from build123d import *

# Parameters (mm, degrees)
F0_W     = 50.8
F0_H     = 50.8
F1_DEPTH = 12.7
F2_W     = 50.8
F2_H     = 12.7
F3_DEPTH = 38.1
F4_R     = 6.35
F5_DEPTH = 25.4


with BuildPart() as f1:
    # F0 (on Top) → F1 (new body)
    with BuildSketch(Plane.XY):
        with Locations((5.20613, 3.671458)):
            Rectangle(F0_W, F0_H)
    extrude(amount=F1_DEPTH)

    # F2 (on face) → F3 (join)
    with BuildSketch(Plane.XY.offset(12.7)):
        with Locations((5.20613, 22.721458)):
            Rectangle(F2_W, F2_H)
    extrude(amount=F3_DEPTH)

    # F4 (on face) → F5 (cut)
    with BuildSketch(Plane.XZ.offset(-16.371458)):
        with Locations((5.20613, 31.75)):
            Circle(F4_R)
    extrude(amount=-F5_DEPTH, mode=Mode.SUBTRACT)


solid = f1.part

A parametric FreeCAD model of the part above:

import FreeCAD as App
import Part
import Sketcher
Q = App.Units.Quantity


def add_polygon(sketch, points):
    """Adds a closed chain of lines whose ends are joined by coincident constraints."""
    first, n = sketch.GeometryCount, len(points)
    for a, b in zip(points, points[1:] + points[:1]):
        sketch.addGeometry(Part.LineSegment(App.Vector(*a, 0), App.Vector(*b, 0)), False)
    for i in range(n):
        sketch.addConstraint(Sketcher.Constraint("Coincident", first + i, 2, first + (i + 1) % n, 1))

doc = App.newDocument("Part")
body = doc.addObject("PartDesign::Body", "Body")

sketch1 = doc.addObject("Sketcher::SketchObject", "Sketch")
body.addObject(sketch1)
sketch1.AttachmentSupport = (doc.XY_Plane, [""])
sketch1.MapMode = "FlatFace"
add_polygon(sketch1, [(-20.19387, 29.071458), (-20.19387, -21.728542), (30.60613, -21.728542), (30.60613, 29.071458)])
sketch1.addConstraint([
    Sketcher.Constraint("Vertical", 0),
    Sketcher.Constraint("Horizontal", 1),
    Sketcher.Constraint("Vertical", 2),
    Sketcher.Constraint("Horizontal", 3),
    Sketcher.Constraint("Equal", 3, 0),
    Sketcher.Constraint("DistanceX", 1, 1, 1, 2, Q("2 in")),
    Sketcher.Constraint("DistanceX", 0, 2, -1, 1, Q("20.19387 mm")),
    Sketcher.Constraint("DistanceY", -1, 1, 2, 2, Q("29.071458 mm")),
])
pad1 = doc.addObject("PartDesign::Pad", "Pad")
body.addObject(pad1)
pad1.Profile = sketch1
pad1.Length = Q("0.5 in")

sketch2 = doc.addObject("Sketcher::SketchObject", "Sketch001")
body.addObject(sketch2)
sketch2.AttachmentSupport = (doc.XY_Plane, [""])
sketch2.MapMode = "FlatFace"
sketch2.AttachmentOffset = App.Placement(App.Vector(0, 0, 0.5 * 25.4), App.Rotation())
add_polygon(sketch2, [(-20.19387, 29.071458), (-20.19387, 16.371458), (30.60613, 16.371458), (30.60613, 29.071458)])
sketch2.addConstraint([
    Sketcher.Constraint("Vertical", 0),
    Sketcher.Constraint("Horizontal", 1),
    Sketcher.Constraint("Vertical", 2),
    Sketcher.Constraint("Horizontal", 3),
    Sketcher.Constraint("DistanceX", 1, 1, 1, 2, Q("2 in")),
    Sketcher.Constraint("DistanceY", 0, 2, 0, 1, Q("0.5 in")),
    Sketcher.Constraint("DistanceX", 0, 2, -1, 1, Q("20.19387 mm")),
    Sketcher.Constraint("DistanceY", -1, 1, 0, 2, Q("16.371458 mm")),
])
pad2 = doc.addObject("PartDesign::Pad", "Pad001")
body.addObject(pad2)
pad2.Profile = sketch2
pad2.Length = Q("1.5 in")

sketch3 = doc.addObject("Sketcher::SketchObject", "Sketch002")
body.addObject(sketch3)
sketch3.AttachmentSupport = (doc.XZ_Plane, [""])
sketch3.MapMode = "FlatFace"
sketch3.AttachmentOffset = App.Placement(App.Vector(0, 0, -16.371458), App.Rotation())
sketch3.addGeometry(Part.Circle(App.Vector(5.20613, 31.75, 0), App.Vector(0, 0, 1), 6.35), False)
sketch3.addConstraint([
    Sketcher.Constraint("Diameter", 0, Q("0.5 in")),
    Sketcher.Constraint("DistanceY", -1, 1, 0, 3, Q("1.25 in")),
    Sketcher.Constraint("DistanceX", -1, 1, 0, 3, Q("5.20613 mm")),
])
pocket1 = doc.addObject("PartDesign::Pocket", "Pocket")
body.addObject(pocket1)
pocket1.Profile = sketch3
pocket1.Length = Q("1 in")

doc.recompute()
